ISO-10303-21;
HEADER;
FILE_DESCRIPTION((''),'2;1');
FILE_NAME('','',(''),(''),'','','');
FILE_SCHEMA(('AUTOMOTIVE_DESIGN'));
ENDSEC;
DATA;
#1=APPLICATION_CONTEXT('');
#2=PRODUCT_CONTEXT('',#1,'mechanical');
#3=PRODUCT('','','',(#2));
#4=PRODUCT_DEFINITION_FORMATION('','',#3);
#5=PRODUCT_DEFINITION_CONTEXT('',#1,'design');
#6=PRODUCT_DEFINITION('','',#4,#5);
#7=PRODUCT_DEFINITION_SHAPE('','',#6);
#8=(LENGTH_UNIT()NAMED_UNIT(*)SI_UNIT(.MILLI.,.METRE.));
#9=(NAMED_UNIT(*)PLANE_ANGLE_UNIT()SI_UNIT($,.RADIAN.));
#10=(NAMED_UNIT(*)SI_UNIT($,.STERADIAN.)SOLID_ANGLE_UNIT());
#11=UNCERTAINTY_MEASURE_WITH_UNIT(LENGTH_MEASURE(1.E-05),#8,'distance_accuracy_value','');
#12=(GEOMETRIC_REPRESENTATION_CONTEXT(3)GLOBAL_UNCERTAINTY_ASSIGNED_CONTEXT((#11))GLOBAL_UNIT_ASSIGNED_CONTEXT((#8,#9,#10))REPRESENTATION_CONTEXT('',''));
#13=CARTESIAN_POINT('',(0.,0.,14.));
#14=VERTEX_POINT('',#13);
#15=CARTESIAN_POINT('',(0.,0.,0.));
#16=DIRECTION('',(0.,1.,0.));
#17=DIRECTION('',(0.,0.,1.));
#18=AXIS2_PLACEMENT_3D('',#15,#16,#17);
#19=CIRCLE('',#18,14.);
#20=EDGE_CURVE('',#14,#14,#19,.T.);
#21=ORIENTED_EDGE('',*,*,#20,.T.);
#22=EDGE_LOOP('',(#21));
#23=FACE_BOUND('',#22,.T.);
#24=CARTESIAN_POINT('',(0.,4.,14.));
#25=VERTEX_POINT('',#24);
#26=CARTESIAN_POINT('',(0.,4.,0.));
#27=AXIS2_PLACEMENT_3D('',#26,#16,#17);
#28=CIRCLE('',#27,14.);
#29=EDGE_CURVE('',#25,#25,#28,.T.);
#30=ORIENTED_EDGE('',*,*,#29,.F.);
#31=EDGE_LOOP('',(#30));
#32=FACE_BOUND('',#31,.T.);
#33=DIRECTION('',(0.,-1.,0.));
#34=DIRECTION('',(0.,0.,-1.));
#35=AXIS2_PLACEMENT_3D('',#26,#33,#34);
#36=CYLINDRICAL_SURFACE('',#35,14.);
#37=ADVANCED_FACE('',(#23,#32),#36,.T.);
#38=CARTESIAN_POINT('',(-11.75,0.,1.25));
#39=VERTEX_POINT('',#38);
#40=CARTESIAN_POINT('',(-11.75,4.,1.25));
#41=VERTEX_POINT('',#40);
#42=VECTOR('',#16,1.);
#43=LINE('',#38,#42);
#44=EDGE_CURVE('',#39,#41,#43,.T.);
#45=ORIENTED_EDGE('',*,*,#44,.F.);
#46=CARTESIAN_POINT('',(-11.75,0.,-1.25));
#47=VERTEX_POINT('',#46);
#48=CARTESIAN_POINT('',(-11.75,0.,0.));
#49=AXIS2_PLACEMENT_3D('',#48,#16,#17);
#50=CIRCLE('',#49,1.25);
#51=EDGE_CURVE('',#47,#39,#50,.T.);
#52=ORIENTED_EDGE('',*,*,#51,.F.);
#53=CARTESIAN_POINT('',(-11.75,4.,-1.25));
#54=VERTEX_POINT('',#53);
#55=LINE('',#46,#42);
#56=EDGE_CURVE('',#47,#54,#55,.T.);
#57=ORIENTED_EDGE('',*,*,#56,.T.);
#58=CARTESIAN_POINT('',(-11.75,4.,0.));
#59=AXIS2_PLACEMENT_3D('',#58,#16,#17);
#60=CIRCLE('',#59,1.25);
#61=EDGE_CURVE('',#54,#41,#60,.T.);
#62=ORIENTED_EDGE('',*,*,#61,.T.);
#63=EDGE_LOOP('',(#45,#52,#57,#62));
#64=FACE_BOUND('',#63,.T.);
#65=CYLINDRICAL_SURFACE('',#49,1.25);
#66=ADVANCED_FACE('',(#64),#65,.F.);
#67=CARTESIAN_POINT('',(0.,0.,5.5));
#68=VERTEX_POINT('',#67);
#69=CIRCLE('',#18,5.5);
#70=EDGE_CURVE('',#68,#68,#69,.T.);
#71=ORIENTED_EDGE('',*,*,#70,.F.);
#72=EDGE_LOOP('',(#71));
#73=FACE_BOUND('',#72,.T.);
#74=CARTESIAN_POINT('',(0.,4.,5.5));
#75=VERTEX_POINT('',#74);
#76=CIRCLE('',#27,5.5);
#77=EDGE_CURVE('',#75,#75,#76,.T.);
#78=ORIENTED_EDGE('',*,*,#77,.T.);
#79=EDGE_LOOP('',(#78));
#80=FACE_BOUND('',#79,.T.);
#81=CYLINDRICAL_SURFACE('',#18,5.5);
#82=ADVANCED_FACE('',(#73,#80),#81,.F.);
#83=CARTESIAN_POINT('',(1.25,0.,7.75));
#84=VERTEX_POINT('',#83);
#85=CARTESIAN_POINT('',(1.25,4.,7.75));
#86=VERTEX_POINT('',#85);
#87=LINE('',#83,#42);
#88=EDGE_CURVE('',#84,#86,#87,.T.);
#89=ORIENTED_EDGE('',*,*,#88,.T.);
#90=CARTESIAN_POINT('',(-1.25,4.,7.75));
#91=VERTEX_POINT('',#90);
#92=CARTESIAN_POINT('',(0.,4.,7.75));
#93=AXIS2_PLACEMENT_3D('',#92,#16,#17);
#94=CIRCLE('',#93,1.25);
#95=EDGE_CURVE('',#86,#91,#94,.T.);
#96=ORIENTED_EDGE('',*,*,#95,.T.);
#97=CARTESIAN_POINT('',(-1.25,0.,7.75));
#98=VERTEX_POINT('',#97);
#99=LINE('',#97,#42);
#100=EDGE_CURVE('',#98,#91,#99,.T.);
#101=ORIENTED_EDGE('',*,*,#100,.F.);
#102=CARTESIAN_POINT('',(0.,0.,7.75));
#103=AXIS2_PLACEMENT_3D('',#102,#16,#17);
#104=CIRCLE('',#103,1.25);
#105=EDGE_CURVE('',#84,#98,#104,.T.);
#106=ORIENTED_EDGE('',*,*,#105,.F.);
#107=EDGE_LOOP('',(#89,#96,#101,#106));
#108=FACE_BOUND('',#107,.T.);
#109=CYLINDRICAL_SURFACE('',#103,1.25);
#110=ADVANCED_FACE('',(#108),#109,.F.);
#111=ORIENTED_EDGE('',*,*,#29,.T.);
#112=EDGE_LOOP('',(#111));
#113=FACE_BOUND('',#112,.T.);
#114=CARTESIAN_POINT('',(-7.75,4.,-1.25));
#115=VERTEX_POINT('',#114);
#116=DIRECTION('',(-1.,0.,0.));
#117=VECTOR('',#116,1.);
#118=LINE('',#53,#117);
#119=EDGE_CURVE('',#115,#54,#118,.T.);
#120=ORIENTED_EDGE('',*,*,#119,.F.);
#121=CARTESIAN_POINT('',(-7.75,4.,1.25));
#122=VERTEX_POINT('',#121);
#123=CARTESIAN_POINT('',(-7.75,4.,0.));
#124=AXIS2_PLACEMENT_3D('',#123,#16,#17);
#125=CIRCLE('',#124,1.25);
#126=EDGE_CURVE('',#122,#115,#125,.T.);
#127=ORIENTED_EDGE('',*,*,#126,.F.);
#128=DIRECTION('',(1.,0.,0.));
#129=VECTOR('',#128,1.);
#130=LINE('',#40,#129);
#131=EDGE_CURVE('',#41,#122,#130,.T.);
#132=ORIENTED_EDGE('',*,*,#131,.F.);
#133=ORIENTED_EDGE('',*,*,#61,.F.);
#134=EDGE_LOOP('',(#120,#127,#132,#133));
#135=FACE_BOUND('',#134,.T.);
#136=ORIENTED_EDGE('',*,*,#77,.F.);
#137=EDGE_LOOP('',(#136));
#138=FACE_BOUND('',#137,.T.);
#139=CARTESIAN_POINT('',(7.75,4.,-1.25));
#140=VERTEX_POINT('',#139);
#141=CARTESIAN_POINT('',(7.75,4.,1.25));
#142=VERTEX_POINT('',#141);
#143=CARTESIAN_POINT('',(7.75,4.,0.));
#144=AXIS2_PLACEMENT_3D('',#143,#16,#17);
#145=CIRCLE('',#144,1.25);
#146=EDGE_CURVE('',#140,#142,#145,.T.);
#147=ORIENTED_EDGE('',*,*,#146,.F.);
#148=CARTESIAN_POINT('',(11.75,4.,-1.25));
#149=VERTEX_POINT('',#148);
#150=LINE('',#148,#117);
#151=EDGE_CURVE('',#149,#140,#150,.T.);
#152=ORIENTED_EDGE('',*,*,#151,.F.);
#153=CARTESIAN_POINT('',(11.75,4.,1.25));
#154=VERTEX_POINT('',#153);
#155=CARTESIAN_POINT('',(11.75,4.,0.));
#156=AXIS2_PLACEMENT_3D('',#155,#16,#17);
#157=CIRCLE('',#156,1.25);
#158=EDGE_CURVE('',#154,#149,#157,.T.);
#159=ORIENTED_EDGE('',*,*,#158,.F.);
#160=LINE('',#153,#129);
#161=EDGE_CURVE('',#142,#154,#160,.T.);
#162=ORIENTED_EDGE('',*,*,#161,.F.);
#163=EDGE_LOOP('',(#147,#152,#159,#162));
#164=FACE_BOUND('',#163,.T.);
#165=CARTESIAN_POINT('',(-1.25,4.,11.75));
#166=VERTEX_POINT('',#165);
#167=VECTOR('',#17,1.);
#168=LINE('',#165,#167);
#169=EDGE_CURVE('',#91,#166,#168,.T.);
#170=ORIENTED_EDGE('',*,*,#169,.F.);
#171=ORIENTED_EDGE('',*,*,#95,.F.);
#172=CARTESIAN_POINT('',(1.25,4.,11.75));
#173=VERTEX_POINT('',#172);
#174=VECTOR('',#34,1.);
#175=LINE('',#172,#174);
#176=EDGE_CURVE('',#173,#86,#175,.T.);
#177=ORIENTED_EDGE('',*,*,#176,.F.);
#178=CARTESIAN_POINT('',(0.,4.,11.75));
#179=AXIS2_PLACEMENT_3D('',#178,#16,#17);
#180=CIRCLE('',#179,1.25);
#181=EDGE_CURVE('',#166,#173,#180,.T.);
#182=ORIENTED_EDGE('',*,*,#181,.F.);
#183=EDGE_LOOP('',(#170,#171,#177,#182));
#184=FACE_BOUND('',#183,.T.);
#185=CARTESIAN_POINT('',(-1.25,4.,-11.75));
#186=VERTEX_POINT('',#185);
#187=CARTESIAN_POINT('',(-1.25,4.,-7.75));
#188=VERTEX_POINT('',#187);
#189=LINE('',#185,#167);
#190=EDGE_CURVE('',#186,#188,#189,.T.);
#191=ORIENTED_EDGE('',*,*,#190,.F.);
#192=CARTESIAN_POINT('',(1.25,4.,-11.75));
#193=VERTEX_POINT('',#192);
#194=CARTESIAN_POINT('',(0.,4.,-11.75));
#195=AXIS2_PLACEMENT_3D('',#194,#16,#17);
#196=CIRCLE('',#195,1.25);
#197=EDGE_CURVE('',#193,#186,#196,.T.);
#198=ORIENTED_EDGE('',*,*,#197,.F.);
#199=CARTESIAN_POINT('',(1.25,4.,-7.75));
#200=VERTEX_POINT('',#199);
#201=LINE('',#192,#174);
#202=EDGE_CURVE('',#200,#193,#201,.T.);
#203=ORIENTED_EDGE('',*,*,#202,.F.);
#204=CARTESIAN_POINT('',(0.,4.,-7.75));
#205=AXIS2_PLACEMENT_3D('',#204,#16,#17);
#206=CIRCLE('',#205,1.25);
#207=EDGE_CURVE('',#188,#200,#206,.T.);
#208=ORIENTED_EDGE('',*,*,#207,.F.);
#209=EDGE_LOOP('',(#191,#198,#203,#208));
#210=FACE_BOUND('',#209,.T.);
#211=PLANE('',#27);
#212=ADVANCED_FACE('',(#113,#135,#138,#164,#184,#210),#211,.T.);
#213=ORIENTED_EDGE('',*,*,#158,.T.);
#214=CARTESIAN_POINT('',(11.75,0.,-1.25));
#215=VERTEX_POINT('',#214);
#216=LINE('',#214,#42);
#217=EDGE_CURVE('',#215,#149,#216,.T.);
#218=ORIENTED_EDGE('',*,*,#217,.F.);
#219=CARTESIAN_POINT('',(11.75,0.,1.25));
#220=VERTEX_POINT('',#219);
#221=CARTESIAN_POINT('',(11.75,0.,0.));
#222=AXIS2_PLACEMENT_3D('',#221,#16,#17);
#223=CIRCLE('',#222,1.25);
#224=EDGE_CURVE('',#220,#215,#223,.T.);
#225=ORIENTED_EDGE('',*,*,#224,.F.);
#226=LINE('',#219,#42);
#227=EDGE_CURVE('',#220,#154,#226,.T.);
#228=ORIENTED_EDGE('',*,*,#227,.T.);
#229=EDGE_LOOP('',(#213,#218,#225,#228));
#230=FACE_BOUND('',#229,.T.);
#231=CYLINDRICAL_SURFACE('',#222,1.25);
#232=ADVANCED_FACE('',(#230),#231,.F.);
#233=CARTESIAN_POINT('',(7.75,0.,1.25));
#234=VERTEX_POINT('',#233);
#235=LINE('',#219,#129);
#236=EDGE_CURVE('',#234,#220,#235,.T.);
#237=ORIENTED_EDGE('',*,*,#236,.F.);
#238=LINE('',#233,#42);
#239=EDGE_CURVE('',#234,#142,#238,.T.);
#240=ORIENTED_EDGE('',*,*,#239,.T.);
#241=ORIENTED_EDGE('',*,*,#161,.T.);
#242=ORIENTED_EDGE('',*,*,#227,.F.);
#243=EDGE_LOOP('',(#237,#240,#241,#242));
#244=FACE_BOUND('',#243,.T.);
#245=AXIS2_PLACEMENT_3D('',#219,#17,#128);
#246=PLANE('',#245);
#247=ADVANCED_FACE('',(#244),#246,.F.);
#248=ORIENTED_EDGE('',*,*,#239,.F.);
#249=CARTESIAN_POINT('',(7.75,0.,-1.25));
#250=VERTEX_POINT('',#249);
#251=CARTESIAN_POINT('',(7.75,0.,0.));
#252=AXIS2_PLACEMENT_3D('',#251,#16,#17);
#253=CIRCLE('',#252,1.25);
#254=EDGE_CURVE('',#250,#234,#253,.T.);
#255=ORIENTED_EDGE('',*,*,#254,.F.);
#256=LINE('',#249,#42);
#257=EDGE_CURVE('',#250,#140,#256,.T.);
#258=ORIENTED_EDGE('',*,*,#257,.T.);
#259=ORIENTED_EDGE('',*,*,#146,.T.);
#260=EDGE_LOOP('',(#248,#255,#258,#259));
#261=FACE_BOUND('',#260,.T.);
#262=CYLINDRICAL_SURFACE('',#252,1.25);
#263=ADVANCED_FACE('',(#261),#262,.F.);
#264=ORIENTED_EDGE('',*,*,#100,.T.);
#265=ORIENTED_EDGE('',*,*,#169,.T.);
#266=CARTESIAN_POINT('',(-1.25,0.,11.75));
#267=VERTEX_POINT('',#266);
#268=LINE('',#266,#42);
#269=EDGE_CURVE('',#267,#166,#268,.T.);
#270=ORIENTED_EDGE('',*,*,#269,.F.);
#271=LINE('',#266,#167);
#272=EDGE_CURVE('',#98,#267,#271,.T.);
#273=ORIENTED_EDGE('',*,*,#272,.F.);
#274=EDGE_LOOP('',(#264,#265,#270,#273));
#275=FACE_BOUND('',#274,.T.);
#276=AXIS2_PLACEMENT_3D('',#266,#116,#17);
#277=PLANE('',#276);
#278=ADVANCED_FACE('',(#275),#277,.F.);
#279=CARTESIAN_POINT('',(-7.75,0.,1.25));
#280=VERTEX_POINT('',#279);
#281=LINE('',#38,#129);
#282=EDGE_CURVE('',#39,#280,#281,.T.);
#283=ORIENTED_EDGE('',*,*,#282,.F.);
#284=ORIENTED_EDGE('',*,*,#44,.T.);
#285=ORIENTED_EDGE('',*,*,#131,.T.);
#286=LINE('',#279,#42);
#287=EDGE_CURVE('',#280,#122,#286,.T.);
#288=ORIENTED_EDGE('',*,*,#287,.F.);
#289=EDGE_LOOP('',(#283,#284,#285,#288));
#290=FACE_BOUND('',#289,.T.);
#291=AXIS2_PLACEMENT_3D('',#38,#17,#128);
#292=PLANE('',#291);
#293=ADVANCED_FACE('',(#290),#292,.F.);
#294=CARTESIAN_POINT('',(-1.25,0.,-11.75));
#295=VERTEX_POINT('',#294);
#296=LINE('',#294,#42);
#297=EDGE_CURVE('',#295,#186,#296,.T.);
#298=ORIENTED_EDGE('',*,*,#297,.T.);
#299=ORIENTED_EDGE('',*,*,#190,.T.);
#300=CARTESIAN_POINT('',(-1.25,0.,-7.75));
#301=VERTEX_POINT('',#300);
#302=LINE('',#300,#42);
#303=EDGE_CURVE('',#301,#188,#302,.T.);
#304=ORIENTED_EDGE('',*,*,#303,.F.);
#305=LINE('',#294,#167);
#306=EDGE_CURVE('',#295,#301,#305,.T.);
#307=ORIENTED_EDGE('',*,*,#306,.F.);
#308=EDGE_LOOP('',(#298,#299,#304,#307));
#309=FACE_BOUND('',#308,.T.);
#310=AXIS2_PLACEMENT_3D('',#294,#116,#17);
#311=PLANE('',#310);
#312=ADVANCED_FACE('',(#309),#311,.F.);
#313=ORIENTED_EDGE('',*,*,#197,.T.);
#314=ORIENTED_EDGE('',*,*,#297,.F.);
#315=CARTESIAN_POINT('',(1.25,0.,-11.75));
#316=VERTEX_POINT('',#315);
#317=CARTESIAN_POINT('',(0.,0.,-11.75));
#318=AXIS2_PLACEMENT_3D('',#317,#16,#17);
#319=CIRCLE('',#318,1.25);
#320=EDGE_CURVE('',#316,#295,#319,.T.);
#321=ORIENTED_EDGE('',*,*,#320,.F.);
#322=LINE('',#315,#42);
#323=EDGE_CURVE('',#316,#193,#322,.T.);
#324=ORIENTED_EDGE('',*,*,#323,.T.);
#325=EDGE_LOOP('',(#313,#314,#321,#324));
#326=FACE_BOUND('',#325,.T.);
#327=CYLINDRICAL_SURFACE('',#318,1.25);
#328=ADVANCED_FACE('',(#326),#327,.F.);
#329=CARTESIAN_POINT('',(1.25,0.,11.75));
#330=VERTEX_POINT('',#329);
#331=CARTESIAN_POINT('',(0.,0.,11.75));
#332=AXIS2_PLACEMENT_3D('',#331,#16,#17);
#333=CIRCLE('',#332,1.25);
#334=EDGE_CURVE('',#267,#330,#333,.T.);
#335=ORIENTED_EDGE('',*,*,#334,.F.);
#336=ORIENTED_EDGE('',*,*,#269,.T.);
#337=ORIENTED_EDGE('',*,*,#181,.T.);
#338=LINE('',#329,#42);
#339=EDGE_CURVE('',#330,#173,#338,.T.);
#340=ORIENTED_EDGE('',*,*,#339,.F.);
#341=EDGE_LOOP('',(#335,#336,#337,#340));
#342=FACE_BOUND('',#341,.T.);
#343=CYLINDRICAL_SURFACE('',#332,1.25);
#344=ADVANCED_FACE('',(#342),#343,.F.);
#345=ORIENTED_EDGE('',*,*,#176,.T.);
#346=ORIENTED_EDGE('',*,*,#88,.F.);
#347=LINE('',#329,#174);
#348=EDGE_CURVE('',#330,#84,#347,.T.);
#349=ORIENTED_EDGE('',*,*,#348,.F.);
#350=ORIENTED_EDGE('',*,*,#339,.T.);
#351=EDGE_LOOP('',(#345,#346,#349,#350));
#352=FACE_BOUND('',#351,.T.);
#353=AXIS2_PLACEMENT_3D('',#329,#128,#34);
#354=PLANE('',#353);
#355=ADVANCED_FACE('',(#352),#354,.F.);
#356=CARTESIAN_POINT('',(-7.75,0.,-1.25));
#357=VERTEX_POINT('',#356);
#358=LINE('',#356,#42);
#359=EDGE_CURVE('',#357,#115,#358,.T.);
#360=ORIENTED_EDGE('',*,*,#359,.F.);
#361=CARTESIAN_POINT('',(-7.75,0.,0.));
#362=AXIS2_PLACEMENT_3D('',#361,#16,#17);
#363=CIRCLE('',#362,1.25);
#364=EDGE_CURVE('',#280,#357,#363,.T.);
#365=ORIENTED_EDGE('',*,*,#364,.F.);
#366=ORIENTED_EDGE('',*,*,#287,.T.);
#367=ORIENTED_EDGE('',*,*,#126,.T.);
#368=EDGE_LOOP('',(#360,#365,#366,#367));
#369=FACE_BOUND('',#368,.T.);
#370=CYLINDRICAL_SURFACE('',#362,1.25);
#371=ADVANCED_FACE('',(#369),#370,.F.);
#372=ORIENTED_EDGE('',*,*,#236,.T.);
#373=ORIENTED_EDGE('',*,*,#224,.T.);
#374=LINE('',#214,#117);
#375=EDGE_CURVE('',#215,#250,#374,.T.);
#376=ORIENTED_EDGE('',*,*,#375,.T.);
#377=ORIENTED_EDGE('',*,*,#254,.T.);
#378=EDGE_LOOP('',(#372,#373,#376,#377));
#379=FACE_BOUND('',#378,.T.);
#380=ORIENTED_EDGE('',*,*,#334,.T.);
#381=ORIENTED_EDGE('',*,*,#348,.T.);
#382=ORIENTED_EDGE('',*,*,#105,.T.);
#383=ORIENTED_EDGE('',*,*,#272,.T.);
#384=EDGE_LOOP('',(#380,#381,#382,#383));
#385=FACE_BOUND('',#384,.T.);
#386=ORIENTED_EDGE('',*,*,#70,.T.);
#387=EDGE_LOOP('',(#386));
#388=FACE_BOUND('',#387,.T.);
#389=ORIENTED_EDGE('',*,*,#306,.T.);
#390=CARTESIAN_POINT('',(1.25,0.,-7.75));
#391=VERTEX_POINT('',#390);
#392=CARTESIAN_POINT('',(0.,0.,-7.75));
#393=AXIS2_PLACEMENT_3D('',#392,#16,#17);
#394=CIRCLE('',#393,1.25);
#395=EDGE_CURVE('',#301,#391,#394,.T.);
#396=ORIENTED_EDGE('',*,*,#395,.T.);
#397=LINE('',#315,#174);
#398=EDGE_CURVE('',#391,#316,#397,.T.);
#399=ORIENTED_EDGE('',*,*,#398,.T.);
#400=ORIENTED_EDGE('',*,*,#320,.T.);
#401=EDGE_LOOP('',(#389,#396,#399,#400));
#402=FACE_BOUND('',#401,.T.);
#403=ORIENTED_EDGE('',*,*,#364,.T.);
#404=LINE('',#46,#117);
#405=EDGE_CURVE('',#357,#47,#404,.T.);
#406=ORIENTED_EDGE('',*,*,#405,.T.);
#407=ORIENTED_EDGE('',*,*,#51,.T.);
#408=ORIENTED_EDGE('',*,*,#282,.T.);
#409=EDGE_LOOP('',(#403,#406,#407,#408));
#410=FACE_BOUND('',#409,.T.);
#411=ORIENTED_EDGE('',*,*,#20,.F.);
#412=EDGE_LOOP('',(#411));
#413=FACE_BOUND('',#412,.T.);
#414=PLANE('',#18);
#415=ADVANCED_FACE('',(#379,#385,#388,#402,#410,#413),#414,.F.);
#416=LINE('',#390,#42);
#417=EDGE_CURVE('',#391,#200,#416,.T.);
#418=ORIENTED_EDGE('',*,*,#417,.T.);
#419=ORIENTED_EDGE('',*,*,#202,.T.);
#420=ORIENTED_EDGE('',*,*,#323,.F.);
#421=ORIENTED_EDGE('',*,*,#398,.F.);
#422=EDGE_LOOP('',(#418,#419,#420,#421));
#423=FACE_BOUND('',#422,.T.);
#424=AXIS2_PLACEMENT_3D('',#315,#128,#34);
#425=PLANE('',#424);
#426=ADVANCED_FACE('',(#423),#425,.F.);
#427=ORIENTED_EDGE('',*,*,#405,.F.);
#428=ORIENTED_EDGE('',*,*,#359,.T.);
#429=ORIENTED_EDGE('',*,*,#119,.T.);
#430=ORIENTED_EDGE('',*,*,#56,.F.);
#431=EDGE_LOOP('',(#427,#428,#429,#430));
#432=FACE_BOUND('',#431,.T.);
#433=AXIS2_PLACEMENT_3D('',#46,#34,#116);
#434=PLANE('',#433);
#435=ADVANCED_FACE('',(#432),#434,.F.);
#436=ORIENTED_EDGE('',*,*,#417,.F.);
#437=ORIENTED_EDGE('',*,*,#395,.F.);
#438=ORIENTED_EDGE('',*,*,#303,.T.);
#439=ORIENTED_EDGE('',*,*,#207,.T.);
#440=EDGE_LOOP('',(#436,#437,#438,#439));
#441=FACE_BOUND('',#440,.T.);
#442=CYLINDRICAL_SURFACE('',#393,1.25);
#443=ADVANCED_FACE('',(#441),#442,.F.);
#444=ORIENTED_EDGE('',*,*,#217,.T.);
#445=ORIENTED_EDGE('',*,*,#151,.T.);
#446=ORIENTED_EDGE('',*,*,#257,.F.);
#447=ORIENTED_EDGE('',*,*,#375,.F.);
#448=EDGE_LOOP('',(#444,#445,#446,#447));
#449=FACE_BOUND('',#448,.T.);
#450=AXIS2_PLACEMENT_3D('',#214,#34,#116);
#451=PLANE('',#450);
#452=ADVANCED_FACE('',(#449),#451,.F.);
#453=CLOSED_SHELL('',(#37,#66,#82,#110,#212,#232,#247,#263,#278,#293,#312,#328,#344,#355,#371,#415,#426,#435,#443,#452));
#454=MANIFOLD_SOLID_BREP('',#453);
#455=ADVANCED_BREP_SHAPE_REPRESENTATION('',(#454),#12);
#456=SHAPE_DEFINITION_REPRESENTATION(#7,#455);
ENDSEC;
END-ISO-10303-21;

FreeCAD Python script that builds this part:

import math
import FreeCAD as App
import Part
import Sketcher

V = App.Vector

doc = App.newDocument("Part")
body = doc.addObject("PartDesign::Body", "Body")

# Sketch on XZ plane
sketch1 = body.newObject("Sketcher::SketchObject", "Sketch")
sketch1.AttachmentSupport = (doc.getObject("XZ_Plane"), [""])
sketch1.MapMode = "FlatFace"
sketch1.addGeometry(Part.Circle(V(0, 0, 0), V(0, 0, 1), 14), False)
sketch1.addConstraint([
    Sketcher.Constraint("Coincident", 0, 3, -1, 1),
    Sketcher.Constraint("Diameter", 0, 28.0),
])
pad1 = body.newObject("PartDesign::Pad", "Pad")
pad1.Profile = sketch1
pad1.Length = 4
pad1.Reversed = True

# Sketch on XZ plane
sketch2 = body.newObject("Sketcher::SketchObject", "Sketch001")
sketch2.AttachmentSupport = (doc.getObject("XZ_Plane"), [""])
sketch2.MapMode = "FlatFace"
sketch2.AttachmentOffset = App.Placement(V(0, 0, -4), App.Rotation())
sketch2.addGeometry(Part.Circle(V(0, 0, 0), V(0, 0, 1), 5.5), False)
sketch2.addConstraint([
    Sketcher.Constraint("Coincident", 0, 3, -1, 1),
    Sketcher.Constraint("Diameter", 0, 11.0),
])
pocket1 = body.newObject("PartDesign::Pocket", "Pocket")
pocket1.Profile = sketch2
pocket1.Type = "ThroughAll"
pocket1.Reversed = True

# Sketch on XZ plane
sketch3 = body.newObject("Sketcher::SketchObject", "Sketch002")
sketch3.AttachmentSupport = (doc.getObject("XZ_Plane"), [""])
sketch3.MapMode = "FlatFace"
sketch3.AttachmentOffset = App.Placement(V(0, 0, -4), App.Rotation())
sketch3.addGeometry([
    Part.LineSegment(V(-7.75, -1.25, 0), V(-11.75, -1.25, 0)),  # 0
    Part.ArcOfCircle(Part.Circle(V(-11.75, 0, 0), V(0, 0, 1), 1.25), math.radians(90), math.radians(270)),  # 1
    Part.LineSegment(V(-11.75, 1.25, 0), V(-7.75, 1.25, 0)),  # 2
    Part.ArcOfCircle(Part.Circle(V(-7.75, 0, 0), V(0, 0, 1), 1.25), math.radians(-90), math.radians(90)),  # 3
    Part.LineSegment(V(-1.25, -11.75, 0), V(-1.25, -7.75, 0)),  # 4
    Part.ArcOfCircle(Part.Circle(V(0, -7.75, 0), V(0, 0, 1), 1.25), math.radians(0), math.radians(180)),  # 5
    Part.LineSegment(V(1.25, -7.75, 0), V(1.25, -11.75, 0)),  # 6
    Part.ArcOfCircle(Part.Circle(V(0, -11.75, 0), V(0, 0, 1), 1.25), math.radians(180), math.radians(360)),  # 7
    Part.LineSegment(V(11.75, -1.25, 0), V(7.75, -1.25, 0)),  # 8
    Part.ArcOfCircle(Part.Circle(V(7.75, 0, 0), V(0, 0, 1), 1.25), math.radians(90), math.radians(270)),  # 9
    Part.LineSegment(V(7.75, 1.25, 0), V(11.75, 1.25, 0)),  # 10
    Part.ArcOfCircle(Part.Circle(V(11.75, 0, 0), V(0, 0, 1), 1.25), math.radians(-90), math.radians(90)),  # 11
    Part.LineSegment(V(1.25, 11.75, 0), V(1.25, 7.75, 0)),  # 12
    Part.ArcOfCircle(Part.Circle(V(0, 7.75, 0), V(0, 0, 1), 1.25), math.radians(180), math.radians(360)),  # 13
    Part.LineSegment(V(-1.25, 7.75, 0), V(-1.25, 11.75, 0)),  # 14
    Part.ArcOfCircle(Part.Circle(V(0, 11.75, 0), V(0, 0, 1), 1.25), math.radians(0), math.radians(180)),  # 15
], False)
sketch3.addConstraint([
    Sketcher.Constraint("Tangent", 0, 2, 1, 2),
    Sketcher.Constraint("Tangent", 1, 1, 2, 1),
    Sketcher.Constraint("Tangent", 2, 2, 3, 2),
    Sketcher.Constraint("Tangent", 3, 1, 0, 1),
    Sketcher.Constraint("Tangent", 4, 2, 5, 2),
    Sketcher.Constraint("Tangent", 5, 1, 6, 1),
    Sketcher.Constraint("Tangent", 6, 2, 7, 2),
    Sketcher.Constraint("Tangent", 7, 1, 4, 1),
    Sketcher.Constraint("Tangent", 8, 2, 9, 2),
    Sketcher.Constraint("Tangent", 9, 1, 10, 1),
    Sketcher.Constraint("Tangent", 10, 2, 11, 2),
    Sketcher.Constraint("Tangent", 11, 1, 8, 1),
    Sketcher.Constraint("Tangent", 12, 2, 13, 2),
    Sketcher.Constraint("Tangent", 13, 1, 14, 1),
    Sketcher.Constraint("Tangent", 14, 2, 15, 2),
    Sketcher.Constraint("Tangent", 15, 1, 12, 1),
    Sketcher.Constraint("Horizontal", 0),
    Sketcher.Constraint("Horizontal", 2),
    Sketcher.Constraint("Vertical", 4),
    Sketcher.Constraint("Vertical", 6),
    Sketcher.Constraint("Horizontal", 8),
    Sketcher.Constraint("Horizontal", 10),
    Sketcher.Constraint("Vertical", 12),
    Sketcher.Constraint("Vertical", 14),
    Sketcher.Constraint("Equal", 3, 5),
    Sketcher.Constraint("Equal", 7, 9),
    Sketcher.Constraint("Equal", 11, 13),
    Sketcher.Constraint("Symmetric", 3, 3, 9, 3, -1, 1),
    Sketcher.Constraint("Symmetric", 5, 3, 13, 3, -1, 1),
    Sketcher.Constraint("Symmetric", 1, 3, 11, 3, -2),
    Sketcher.Constraint("Symmetric", 7, 3, 15, 3, -1),
    Sketcher.Constraint("Equal", 10, 4),
    Sketcher.Constraint("DistanceX", 0, 2, 0, 1, 4.0),
    Sketcher.Constraint("Radius", 1, 1.25),
    Sketcher.Constraint("DistanceY", 0, 2, 13, 3, 9.0),
    Sketcher.Constraint("DistanceX", 3, 1, 5, 1, 9.0),
])
pocket2 = body.newObject("PartDesign::Pocket", "Pocket001")
pocket2.Profile = sketch3
pocket2.Type = "ThroughAll"
pocket2.Reversed = True

doc.recompute()
